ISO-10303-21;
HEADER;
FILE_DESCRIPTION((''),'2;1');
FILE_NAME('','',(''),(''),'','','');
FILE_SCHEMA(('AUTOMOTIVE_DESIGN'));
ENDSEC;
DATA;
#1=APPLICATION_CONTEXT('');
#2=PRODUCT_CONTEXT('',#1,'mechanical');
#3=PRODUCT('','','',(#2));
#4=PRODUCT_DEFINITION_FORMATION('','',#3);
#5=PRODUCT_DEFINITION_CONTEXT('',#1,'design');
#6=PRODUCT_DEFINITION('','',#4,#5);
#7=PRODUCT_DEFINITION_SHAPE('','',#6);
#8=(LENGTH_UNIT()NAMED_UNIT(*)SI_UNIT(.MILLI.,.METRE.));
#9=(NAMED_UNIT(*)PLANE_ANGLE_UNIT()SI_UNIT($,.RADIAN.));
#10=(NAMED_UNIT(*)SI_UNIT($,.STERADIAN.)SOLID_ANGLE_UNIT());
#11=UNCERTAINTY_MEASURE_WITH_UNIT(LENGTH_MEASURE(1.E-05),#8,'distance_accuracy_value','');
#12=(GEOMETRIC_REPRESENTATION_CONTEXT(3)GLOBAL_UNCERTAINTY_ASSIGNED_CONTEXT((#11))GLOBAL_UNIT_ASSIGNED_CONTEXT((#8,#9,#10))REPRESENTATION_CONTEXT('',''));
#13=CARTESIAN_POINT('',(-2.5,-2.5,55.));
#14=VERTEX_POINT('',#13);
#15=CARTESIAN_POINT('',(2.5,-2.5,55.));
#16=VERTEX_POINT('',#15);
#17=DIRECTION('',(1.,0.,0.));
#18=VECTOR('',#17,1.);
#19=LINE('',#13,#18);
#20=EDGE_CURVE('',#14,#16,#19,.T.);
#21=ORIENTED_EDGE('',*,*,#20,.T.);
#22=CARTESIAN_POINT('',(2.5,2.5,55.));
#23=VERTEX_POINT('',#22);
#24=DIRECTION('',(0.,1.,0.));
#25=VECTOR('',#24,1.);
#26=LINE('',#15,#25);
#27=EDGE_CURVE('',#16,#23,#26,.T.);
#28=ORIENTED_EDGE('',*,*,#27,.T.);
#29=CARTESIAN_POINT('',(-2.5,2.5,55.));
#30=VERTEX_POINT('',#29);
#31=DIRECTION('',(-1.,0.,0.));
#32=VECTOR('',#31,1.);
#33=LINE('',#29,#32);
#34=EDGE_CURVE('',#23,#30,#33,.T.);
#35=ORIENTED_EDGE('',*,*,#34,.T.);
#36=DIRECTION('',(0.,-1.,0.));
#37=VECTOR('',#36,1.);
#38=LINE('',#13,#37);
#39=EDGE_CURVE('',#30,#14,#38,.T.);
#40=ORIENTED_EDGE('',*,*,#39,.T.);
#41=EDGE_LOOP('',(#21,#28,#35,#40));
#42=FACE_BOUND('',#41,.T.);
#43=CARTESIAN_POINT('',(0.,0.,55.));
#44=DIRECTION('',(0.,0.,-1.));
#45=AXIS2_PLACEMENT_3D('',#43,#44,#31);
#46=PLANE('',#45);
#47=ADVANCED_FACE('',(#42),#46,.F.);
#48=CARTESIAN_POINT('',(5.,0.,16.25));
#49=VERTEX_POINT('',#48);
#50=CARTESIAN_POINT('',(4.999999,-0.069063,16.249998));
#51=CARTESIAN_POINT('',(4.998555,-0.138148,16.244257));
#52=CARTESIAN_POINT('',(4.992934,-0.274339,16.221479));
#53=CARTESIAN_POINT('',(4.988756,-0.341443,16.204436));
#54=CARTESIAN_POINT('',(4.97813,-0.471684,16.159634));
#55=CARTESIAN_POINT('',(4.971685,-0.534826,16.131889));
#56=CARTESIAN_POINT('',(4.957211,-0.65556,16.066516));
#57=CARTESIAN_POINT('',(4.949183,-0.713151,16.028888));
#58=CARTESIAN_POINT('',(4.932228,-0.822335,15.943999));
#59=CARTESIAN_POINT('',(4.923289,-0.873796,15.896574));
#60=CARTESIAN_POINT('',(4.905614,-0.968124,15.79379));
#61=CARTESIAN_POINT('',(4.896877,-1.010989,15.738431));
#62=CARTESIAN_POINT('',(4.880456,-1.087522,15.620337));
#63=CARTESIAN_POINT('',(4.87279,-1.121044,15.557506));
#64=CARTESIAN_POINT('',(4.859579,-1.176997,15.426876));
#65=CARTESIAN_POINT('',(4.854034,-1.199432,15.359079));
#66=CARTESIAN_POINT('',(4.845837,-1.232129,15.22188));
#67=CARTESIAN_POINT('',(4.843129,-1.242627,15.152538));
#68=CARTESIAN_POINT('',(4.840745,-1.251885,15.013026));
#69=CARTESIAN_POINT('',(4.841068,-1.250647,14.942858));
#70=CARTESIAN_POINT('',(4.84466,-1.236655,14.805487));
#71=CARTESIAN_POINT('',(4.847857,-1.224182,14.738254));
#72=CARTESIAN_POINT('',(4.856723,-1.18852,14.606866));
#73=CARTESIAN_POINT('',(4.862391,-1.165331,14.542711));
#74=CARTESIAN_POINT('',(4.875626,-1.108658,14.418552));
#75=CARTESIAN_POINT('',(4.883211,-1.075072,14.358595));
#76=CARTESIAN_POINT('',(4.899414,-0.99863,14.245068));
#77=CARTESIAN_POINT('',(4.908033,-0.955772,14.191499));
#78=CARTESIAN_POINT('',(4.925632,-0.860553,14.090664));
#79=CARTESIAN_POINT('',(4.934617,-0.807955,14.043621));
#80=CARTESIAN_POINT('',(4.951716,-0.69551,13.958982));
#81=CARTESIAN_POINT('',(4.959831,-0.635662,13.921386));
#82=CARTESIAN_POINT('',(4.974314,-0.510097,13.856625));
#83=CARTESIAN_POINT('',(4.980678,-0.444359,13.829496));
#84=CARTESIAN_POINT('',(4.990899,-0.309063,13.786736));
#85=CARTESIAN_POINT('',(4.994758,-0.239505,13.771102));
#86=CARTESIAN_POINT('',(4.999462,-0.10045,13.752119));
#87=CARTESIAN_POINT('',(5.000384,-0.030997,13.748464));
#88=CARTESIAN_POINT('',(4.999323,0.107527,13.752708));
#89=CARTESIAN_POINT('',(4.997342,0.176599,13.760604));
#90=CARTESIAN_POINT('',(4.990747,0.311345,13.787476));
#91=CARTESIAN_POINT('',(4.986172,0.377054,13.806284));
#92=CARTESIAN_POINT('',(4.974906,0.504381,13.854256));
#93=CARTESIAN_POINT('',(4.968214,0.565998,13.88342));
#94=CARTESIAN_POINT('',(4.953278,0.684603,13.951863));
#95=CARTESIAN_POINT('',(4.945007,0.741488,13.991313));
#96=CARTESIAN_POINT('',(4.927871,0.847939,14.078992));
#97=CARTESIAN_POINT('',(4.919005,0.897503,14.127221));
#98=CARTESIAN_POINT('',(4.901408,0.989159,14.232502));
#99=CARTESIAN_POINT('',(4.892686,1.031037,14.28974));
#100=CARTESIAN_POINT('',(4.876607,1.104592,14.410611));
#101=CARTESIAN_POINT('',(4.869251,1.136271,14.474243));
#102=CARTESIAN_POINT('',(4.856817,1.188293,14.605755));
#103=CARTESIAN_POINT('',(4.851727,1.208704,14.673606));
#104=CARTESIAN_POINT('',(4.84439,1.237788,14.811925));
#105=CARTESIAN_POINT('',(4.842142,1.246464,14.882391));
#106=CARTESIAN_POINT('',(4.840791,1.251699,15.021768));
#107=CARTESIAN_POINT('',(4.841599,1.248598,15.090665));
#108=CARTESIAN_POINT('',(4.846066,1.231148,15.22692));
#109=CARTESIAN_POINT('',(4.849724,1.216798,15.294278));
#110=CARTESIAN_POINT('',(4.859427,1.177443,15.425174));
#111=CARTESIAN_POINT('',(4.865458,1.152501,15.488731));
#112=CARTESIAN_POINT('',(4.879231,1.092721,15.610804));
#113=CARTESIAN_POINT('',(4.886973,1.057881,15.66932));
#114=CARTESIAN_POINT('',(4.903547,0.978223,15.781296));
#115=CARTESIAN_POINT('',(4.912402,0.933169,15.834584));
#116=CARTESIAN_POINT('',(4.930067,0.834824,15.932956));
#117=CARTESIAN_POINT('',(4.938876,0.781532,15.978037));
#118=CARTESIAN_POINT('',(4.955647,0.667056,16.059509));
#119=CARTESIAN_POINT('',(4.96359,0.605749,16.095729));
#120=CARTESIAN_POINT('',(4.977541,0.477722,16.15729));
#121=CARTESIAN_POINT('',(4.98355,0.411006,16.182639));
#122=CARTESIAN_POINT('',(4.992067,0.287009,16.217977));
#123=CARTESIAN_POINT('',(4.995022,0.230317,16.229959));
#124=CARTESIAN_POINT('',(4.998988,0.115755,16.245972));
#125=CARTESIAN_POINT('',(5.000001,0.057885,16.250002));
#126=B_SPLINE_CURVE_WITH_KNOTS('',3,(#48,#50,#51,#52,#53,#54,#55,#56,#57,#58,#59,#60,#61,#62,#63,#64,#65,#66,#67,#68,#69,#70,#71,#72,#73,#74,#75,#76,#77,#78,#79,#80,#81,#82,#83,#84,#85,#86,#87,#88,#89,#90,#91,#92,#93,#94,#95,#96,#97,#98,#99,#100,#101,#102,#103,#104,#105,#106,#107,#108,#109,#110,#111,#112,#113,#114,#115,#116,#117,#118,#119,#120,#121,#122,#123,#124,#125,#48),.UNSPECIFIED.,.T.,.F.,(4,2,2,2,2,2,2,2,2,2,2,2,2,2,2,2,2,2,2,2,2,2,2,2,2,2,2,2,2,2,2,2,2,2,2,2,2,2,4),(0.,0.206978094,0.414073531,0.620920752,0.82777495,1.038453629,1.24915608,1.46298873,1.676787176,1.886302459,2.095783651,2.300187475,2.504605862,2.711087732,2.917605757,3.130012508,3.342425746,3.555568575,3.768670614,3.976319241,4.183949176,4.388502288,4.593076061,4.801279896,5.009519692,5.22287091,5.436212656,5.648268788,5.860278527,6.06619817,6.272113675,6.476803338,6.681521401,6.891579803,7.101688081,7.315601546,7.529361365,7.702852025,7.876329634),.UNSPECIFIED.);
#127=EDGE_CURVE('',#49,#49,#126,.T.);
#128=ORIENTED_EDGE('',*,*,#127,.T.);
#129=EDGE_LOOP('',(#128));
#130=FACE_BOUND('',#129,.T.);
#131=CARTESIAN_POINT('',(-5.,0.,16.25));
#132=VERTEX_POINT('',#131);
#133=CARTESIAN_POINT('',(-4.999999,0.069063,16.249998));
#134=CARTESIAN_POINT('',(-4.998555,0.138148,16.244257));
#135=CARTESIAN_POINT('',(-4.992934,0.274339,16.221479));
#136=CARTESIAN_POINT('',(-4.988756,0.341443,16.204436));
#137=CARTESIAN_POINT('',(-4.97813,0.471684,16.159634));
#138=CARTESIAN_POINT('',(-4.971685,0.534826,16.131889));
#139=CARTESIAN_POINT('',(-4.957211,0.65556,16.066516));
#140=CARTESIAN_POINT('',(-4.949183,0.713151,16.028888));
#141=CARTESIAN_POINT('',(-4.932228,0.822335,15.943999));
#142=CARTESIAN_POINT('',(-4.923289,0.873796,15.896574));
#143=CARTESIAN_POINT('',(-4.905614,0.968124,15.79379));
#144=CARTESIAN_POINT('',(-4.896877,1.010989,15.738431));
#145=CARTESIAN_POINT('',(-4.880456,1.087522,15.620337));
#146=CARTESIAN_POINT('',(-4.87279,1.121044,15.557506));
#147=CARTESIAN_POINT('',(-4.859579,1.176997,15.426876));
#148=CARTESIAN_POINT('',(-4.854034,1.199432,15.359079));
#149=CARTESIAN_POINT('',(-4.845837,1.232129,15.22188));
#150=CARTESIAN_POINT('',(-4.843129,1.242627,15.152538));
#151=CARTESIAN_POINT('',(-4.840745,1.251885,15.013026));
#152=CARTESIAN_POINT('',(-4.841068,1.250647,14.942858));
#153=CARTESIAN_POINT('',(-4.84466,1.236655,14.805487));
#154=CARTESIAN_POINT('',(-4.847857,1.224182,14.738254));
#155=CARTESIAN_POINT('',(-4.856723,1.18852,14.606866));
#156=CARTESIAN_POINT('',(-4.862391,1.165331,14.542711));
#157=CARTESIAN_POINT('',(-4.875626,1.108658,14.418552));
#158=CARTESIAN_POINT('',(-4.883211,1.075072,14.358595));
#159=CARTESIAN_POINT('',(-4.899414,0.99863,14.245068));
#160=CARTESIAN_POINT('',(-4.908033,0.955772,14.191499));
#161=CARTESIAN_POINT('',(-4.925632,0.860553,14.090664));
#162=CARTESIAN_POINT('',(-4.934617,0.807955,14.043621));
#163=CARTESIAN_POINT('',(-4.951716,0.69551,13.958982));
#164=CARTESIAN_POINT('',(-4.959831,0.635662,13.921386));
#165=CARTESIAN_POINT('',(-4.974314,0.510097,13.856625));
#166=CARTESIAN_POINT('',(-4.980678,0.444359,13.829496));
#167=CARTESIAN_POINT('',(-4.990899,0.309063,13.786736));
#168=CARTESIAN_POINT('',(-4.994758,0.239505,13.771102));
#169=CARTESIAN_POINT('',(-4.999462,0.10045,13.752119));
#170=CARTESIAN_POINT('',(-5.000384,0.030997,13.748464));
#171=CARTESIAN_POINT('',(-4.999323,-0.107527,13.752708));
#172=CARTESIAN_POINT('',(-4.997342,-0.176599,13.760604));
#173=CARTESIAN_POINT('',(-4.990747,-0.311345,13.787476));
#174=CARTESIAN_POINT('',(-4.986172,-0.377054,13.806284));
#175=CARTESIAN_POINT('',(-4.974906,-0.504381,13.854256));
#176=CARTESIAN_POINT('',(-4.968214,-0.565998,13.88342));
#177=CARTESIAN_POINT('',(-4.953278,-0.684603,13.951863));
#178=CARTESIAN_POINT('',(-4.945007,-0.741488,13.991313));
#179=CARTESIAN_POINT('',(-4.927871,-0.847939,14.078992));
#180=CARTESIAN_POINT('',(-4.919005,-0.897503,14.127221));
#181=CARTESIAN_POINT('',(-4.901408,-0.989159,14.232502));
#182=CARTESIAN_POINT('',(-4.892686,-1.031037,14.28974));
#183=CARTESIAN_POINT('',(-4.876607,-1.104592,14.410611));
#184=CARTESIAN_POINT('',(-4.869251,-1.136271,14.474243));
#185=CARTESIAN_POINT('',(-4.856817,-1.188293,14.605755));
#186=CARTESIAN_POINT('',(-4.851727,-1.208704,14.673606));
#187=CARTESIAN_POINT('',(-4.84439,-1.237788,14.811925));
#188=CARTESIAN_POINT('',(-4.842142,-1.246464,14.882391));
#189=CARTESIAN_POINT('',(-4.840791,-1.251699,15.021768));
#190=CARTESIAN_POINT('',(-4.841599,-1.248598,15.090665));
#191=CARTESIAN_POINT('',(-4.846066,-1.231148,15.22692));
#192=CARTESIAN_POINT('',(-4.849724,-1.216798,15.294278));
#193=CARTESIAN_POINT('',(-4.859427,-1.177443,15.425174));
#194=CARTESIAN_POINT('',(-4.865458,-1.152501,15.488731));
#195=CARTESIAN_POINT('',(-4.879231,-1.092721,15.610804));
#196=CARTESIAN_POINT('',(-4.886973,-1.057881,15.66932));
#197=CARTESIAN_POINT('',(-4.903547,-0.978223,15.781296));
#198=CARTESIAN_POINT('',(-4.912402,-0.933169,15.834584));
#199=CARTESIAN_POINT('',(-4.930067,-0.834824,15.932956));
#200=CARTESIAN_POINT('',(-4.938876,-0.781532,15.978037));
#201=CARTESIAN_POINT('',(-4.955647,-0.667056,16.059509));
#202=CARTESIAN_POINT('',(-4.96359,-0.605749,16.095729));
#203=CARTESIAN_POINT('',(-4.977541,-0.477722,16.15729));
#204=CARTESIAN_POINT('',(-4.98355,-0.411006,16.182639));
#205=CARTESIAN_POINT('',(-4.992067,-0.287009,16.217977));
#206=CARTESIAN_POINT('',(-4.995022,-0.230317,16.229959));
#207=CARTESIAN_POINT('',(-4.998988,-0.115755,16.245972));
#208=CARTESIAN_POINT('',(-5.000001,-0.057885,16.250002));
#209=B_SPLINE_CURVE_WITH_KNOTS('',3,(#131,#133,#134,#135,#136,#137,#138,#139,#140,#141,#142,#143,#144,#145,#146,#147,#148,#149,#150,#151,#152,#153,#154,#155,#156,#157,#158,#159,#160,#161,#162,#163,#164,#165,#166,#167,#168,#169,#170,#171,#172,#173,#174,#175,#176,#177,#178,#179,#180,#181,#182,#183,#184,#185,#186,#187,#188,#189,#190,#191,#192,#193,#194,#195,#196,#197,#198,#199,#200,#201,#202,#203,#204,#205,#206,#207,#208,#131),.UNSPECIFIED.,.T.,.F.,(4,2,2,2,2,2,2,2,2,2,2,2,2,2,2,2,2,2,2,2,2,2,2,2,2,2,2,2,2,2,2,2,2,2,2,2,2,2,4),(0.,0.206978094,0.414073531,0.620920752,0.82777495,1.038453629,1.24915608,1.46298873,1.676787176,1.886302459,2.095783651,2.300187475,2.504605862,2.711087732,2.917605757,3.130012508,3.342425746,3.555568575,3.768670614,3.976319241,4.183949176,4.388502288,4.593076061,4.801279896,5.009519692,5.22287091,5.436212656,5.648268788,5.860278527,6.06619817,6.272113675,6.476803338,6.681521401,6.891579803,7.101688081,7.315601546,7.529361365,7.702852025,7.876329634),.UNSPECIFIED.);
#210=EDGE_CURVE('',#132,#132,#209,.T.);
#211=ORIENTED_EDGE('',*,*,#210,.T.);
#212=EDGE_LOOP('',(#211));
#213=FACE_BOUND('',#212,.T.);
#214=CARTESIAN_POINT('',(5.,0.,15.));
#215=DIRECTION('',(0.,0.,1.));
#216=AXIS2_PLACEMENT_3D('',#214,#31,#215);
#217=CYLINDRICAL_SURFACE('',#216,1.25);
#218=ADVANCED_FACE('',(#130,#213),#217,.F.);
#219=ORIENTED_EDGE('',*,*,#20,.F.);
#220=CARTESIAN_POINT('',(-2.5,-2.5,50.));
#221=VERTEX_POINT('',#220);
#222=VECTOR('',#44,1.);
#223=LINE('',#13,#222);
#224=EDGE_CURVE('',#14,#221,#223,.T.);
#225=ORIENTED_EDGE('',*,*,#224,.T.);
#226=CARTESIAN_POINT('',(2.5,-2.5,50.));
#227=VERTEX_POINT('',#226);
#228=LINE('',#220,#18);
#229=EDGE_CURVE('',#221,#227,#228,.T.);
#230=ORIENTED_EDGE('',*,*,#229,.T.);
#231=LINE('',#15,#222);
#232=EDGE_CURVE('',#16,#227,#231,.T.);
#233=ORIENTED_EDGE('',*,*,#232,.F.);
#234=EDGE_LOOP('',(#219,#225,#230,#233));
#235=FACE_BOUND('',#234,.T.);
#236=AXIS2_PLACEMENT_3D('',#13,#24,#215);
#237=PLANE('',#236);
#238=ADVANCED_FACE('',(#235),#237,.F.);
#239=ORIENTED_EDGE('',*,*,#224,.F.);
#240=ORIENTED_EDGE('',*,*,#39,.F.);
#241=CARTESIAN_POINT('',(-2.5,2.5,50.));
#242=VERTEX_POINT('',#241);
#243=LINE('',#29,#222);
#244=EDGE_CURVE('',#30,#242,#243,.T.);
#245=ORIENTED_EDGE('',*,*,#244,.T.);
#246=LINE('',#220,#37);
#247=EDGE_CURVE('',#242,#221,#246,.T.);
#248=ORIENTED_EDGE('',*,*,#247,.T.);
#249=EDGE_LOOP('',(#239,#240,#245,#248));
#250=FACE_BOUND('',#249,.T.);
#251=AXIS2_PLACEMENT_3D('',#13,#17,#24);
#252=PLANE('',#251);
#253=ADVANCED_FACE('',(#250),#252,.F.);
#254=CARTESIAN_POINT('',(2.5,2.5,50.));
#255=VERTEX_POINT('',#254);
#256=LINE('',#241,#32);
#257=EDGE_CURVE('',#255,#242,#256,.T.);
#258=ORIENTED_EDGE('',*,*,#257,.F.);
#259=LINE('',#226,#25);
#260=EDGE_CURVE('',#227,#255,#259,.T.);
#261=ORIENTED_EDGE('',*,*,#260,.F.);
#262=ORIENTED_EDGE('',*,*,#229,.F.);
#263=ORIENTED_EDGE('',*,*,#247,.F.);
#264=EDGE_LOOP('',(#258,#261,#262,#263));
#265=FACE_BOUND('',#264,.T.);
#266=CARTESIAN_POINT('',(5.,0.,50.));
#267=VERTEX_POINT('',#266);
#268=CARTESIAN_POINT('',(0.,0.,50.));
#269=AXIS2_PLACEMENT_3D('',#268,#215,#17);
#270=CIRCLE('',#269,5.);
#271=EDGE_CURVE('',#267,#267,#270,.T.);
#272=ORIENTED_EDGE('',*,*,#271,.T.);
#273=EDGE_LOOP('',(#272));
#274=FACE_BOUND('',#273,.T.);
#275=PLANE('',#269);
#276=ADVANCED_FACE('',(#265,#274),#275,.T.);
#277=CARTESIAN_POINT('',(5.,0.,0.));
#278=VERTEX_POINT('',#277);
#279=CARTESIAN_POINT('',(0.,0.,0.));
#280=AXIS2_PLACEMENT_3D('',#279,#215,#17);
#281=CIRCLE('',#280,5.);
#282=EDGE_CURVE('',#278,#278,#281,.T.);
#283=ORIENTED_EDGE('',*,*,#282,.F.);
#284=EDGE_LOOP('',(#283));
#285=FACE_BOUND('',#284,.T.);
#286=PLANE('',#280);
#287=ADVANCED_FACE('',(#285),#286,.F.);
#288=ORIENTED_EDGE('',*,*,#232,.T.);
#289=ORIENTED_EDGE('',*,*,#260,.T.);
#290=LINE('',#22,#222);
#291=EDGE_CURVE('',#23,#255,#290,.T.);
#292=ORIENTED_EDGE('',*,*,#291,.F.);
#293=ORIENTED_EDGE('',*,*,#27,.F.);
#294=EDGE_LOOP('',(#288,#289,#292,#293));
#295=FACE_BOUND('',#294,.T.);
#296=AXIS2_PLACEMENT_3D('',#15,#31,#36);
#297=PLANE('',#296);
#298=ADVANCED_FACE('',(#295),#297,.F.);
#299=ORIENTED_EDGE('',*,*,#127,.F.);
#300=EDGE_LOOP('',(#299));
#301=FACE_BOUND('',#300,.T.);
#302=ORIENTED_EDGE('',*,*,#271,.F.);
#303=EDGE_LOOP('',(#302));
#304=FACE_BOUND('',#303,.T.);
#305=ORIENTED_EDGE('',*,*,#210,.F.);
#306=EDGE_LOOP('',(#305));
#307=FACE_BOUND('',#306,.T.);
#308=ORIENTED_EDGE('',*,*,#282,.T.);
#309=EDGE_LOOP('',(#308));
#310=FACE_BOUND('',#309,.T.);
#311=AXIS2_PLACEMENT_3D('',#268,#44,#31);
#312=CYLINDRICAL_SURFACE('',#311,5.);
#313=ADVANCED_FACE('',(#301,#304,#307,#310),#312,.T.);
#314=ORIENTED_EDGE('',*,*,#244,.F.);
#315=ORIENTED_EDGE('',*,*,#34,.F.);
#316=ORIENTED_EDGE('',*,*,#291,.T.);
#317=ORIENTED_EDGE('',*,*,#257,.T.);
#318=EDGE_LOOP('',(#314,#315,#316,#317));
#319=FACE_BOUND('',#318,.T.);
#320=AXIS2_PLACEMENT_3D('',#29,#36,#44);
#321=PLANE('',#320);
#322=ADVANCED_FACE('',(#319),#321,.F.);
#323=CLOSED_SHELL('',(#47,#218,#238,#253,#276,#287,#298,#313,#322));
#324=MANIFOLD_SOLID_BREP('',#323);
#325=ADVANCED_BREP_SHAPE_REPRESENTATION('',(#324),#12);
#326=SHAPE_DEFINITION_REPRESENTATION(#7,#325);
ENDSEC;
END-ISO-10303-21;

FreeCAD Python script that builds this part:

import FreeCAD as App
import Part
import Sketcher
Q = App.Units.Quantity


def add_polygon(sketch, points):
    """Adds a closed chain of lines whose ends are joined by coincident constraints."""
    first, n = sketch.GeometryCount, len(points)
    for a, b in zip(points, points[1:] + points[:1]):
        sketch.addGeometry(Part.LineSegment(App.Vector(*a, 0), App.Vector(*b, 0)), False)
    for i in range(n):
        sketch.addConstraint(Sketcher.Constraint("Coincident", first + i, 2, first + (i + 1) % n, 1))

doc = App.newDocument("Part")
body = doc.addObject("PartDesign::Body", "Body")

# Sketch on XY plane
sketch1 = body.newObject("Sketcher::SketchObject", "Sketch")
sketch1.AttachmentSupport = (doc.getObject("XY_Plane"), [""])
sketch1.MapMode = "FlatFace"
sketch1.addGeometry(Part.Circle(App.Vector(0, 0, 0), App.Vector(0, 0, 1), 5), False)
sketch1.addConstraint(Sketcher.Constraint("Coincident", 0, 3, -1, 1))
sketch1.addConstraint(Sketcher.Constraint("Diameter", 0, Q("10 mm")))
pad1 = body.newObject("PartDesign::Pad", "Pad")
pad1.Profile = sketch1
pad1.Length = 50

# Sketch on XY plane
sketch2 = body.newObject("Sketcher::SketchObject", "Sketch001")
sketch2.AttachmentSupport = (doc.getObject("XY_Plane"), [""])
sketch2.MapMode = "FlatFace"
sketch2.AttachmentOffset = App.Placement(App.Vector(0, 0, 50), App.Rotation())
add_polygon(sketch2, [(-2, 2), (-2, -2), (2, -2), (2, 2)])  # lines 0-3
sketch2.addConstraint(Sketcher.Constraint("Vertical", 0))
sketch2.addConstraint(Sketcher.Constraint("Horizontal", 1))
sketch2.addConstraint(Sketcher.Constraint("Vertical", 2))
sketch2.addConstraint(Sketcher.Constraint("Horizontal", 3))
sketch2.addConstraint(Sketcher.Constraint("Symmetric", 0, 2, 2, 2, -1, 1))
sketch2.addConstraint(Sketcher.Constraint("Equal", 3, 0))
sketch2.addConstraint(Sketcher.Constraint("DistanceX", 1, 1, 1, 2, Q("5 mm")))
pad2 = body.newObject("PartDesign::Pad", "Pad001")
pad2.Profile = sketch2
pad2.Length = 5

# Sketch on YZ plane
sketch3 = body.newObject("Sketcher::SketchObject", "Sketch002")
sketch3.AttachmentSupport = (doc.getObject("YZ_Plane"), [""])
sketch3.MapMode = "FlatFace"
sketch3.addGeometry(Part.Circle(App.Vector(0, 15, 0), App.Vector(0, 0, 1), 1.2), False)
sketch3.addConstraint(Sketcher.Constraint("PointOnObject", 0, 3, -2))
sketch3.addConstraint(Sketcher.Constraint("Diameter", 0, Q("2.5 mm")))
sketch3.addConstraint(Sketcher.Constraint("DistanceY", -1, 1, 0, 3, Q("15 mm")))
pocket1 = body.newObject("PartDesign::Pocket", "Pocket")
pocket1.Profile = sketch3
pocket1.Type = "ThroughAll"
pocket1.Midplane = True

doc.recompute()
